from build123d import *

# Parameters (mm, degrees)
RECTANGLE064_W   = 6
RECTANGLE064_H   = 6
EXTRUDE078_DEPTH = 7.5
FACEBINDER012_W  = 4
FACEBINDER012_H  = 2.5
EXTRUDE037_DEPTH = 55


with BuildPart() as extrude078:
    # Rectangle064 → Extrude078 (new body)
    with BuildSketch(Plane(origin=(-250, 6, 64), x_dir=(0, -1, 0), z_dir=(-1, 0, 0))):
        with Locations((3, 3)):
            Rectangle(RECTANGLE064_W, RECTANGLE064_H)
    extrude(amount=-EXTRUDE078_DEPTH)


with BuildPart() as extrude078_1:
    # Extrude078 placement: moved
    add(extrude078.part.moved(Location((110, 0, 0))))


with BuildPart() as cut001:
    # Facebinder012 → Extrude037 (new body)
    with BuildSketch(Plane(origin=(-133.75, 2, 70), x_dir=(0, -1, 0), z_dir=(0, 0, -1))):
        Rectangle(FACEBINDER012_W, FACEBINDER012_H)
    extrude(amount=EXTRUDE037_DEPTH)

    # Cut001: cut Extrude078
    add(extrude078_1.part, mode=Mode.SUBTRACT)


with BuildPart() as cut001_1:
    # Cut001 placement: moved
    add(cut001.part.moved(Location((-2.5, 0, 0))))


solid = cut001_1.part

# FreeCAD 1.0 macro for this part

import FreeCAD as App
import Part
import Sketcher

V = App.Vector

doc = App.newDocument("Part")
body = doc.addObject("PartDesign::Body", "Body")

# Sketch on YZ plane
sketch1 = body.newObject("Sketcher::SketchObject", "Sketch")
sketch1.AttachmentSupport = (doc.getObject("YZ_Plane"), [""])
sketch1.MapMode = "FlatFace"
sketch1.AttachmentOffset = App.Placement(V(0, 0, -250), App.Rotation())
sketch1.addGeometry(Part.LineSegment(V(6, 70, 0), V(6, 64, 0)), False)
sketch1.addGeometry(Part.LineSegment(V(6, 64, 0), V(0, 64, 0)), False)
sketch1.addGeometry(Part.LineSegment(V(0, 64, 0), V(0, 70, 0)), False)
sketch1.addGeometry(Part.LineSegment(V(0, 70, 0), V(6, 70, 0)), False)
sketch1.addConstraint(Sketcher.Constraint("Coincident", 0, 2, 1, 1))
sketch1.addConstraint(Sketcher.Constraint("Coincident", 1, 2, 2, 1))
sketch1.addConstraint(Sketcher.Constraint("Coincident", 2, 2, 3, 1))
sketch1.addConstraint(Sketcher.Constraint("Coincident", 3, 2, 0, 1))
sketch1.addConstraint(Sketcher.Constraint("Vertical", 0))
sketch1.addConstraint(Sketcher.Constraint("Horizontal", 1))
sketch1.addConstraint(Sketcher.Constraint("Vertical", 2))
sketch1.addConstraint(Sketcher.Constraint("Horizontal", 3))
sketch1.addConstraint(Sketcher.Constraint("PointOnObject", 1, 2, -2))
sketch1.addConstraint(Sketcher.Constraint("Equal", 3, 0))
sketch1.addConstraint(Sketcher.Constraint("DistanceX", 1, 2, 1, 1, 6.0))
sketch1.addConstraint(Sketcher.Constraint("DistanceY", -1, 1, 0, 2, 64.0))
pad1 = body.newObject("PartDesign::Pad", "Pad")
pad1.Profile = sketch1
pad1.Length = 7.5
body2 = doc.addObject("PartDesign::Body", "Body001")
doc.recompute()

body.Placement = App.Placement(V(110, 0, 0), App.Rotation(V(0, 0, 1), 0))
boolean = body2.newObject("PartDesign::Boolean", "Boolean")
boolean.Type = "Fuse"
boolean.addObjects([body])
body3 = doc.addObject("PartDesign::Body", "Body002")

# Sketch on XY plane
sketch2 = body3.newObject("Sketcher::SketchObject", "Sketch001")
sketch2.AttachmentSupport = (doc.getObject("XY_Plane002"), [""])
sketch2.MapMode = "FlatFace"
sketch2.AttachmentOffset = App.Placement(V(0, 0, 70), App.Rotation())
sketch2.addGeometry(Part.LineSegment(V(-135, 4, 0), V(-132.5, 4, 0)), False)
sketch2.addGeometry(Part.LineSegment(V(-132.5, 4, 0), V(-132.5, 0, 0)), False)
sketch2.addGeometry(Part.LineSegment(V(-132.5, 0, 0), V(-135, 0, 0)), False)
sketch2.addGeometry(Part.LineSegment(V(-135, 0, 0), V(-135, 4, 0)), False)
sketch2.addConstraint(Sketcher.Constraint("Coincident", 0, 2, 1, 1))
sketch2.addConstraint(Sketcher.Constraint("Coincident", 1, 2, 2, 1))
sketch2.addConstraint(Sketcher.Constraint("Coincident", 2, 2, 3, 1))
sketch2.addConstraint(Sketcher.Constraint("Coincident", 3, 2, 0, 1))
sketch2.addConstraint(Sketcher.Constraint("Horizontal", 0))
sketch2.addConstraint(Sketcher.Constraint("Vertical", 1))
sketch2.addConstraint(Sketcher.Constraint("Horizontal", 2))
sketch2.addConstraint(Sketcher.Constraint("Vertical", 3))
sketch2.addConstraint(Sketcher.Constraint("PointOnObject", 1, 2, -1))
sketch2.addConstraint(Sketcher.Constraint("DistanceY", 1, 2, 1, 1, 4.0))
sketch2.addConstraint(Sketcher.Constraint("DistanceX", 0, 1, 0, 2, 2.5))
sketch2.addConstraint(Sketcher.Constraint("DistanceX", 2, 2, -1, 1, 135.0))
pad2 = body3.newObject("PartDesign::Pad", "Pad001")
pad2.Profile = sketch2
pad2.Length = 55
pad2.Reversed = True
doc.recompute()

boolean2 = body3.newObject("PartDesign::Boolean", "Boolean001")
boolean2.Type = "Cut"
boolean2.addObjects([body2])
body4 = doc.addObject("PartDesign::Body", "Body003")
doc.recompute()

body3.Placement = App.Placement(V(-2.5, 0, 0), App.Rotation(V(0, 0, 1), 0))
boolean3 = body4.newObject("PartDesign::Boolean", "Boolean002")
boolean3.Type = "Fuse"
boolean3.addObjects([body3])

doc.recompute()
